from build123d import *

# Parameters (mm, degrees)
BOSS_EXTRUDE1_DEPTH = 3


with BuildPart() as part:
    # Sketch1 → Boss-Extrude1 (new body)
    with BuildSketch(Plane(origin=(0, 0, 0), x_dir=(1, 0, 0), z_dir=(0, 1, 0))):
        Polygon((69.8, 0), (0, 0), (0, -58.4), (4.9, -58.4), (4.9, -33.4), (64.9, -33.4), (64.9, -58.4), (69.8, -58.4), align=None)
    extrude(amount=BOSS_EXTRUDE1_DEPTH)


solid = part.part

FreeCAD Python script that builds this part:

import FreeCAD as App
import Part
import Sketcher
Q = App.Units.Quantity


def add_polygon(sketch, points):
    """Adds a closed chain of lines whose ends are joined by coincident constraints."""
    first, n = sketch.GeometryCount, len(points)
    for a, b in zip(points, points[1:] + points[:1]):
        sketch.addGeometry(Part.LineSegment(App.Vector(*a, 0), App.Vector(*b, 0)), False)
    for i in range(n):
        sketch.addConstraint(Sketcher.Constraint("Coincident", first + i, 2, first + (i + 1) % n, 1))

doc = App.newDocument("Part")
body = doc.addObject("PartDesign::Body", "Body")

# Sketch on XZ plane
sketch1 = body.newObject("Sketcher::SketchObject", "Sketch")
sketch1.AttachmentSupport = (doc.getObject("XZ_Plane"), [""])
sketch1.MapMode = "FlatFace"
add_polygon(sketch1, [(69.8, 0), (0, 0), (0, 58.4), (4.9, 58.4), (4.9, 33.4), (64.9, 33.4), (64.9, 58.4), (69.8, 58.4)])  # lines 0-7
sketch1.addConstraint([
    Sketcher.Constraint("Horizontal", 0),
    Sketcher.Constraint("Vertical", 1),
    Sketcher.Constraint("Horizontal", 2),
    Sketcher.Constraint("Vertical", 3),
    Sketcher.Constraint("Horizontal", 4),
    Sketcher.Constraint("Vertical", 5),
    Sketcher.Constraint("Horizontal", 6),
    Sketcher.Constraint("Vertical", 7),
    Sketcher.Constraint("Coincident", 0, 2, -1, 1),
    Sketcher.Constraint("Horizontal", 2, 2, 5, 2),
    Sketcher.Constraint("Equal", 2, 6),
    Sketcher.Constraint("DistanceX", 4, 1, 4, 2, Q("60 mm")),
    Sketcher.Constraint("DistanceY", 3, 2, 3, 1, Q("25 mm")),
    Sketcher.Constraint("DistanceX", 0, 2, 0, 1, Q("69.8 mm")),
    Sketcher.Constraint("DistanceY", 1, 1, 1, 2, Q("58.4 mm")),
])
pad1 = body.newObject("PartDesign::Pad", "Pad")
pad1.Profile = sketch1
pad1.Length = 3
pad1.Reversed = True

doc.recompute()
